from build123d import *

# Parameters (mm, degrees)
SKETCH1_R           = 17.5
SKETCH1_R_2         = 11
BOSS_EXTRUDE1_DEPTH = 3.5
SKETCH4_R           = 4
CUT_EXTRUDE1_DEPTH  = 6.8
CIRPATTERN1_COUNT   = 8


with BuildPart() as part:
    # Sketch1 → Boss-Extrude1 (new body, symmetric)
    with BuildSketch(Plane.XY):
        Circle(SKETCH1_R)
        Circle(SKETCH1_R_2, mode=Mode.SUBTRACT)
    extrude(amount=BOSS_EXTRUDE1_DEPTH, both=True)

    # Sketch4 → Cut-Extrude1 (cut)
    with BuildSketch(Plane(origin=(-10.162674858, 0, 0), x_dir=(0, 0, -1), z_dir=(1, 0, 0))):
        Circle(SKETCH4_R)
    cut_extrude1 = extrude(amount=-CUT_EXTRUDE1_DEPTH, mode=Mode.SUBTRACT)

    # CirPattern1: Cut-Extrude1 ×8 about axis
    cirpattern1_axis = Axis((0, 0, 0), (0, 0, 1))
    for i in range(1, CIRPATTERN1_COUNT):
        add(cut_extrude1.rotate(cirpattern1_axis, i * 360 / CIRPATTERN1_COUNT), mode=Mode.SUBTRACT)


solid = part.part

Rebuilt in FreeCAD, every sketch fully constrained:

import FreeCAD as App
import Part
import Sketcher

doc = App.newDocument("Part")
body = doc.addObject("PartDesign::Body", "Body")

sketch1 = doc.addObject("Sketcher::SketchObject", "Sketch")
body.addObject(sketch1)
sketch1.AttachmentSupport = (doc.XY_Plane, [""])
sketch1.MapMode = "FlatFace"
sketch1.addGeometry([
    Part.Circle(App.Vector(0, 0, 0), App.Vector(0, 0, 1), 18),
    Part.Circle(App.Vector(0, 0, 0), App.Vector(0, 0, 1), 11),
], False)
sketch1.addConstraint([
    Sketcher.Constraint("Coincident", 0, 3, -1, 1),
    Sketcher.Constraint("Coincident", 1, 3, -1, 1),
    Sketcher.Constraint("Diameter", 0, 35.0),
    Sketcher.Constraint("Diameter", 1, 22.0),
])
pad1 = doc.addObject("PartDesign::Pad", "Pad")
body.addObject(pad1)
pad1.Profile = sketch1
pad1.Length = 7
pad1.Midplane = True

sketch2 = doc.addObject("Sketcher::SketchObject", "Sketch001")
body.addObject(sketch2)
sketch2.AttachmentSupport = (doc.YZ_Plane, [""])
sketch2.MapMode = "FlatFace"
sketch2.AttachmentOffset = App.Placement(App.Vector(0, 0, -10.162675), App.Rotation())
sketch2.addGeometry(Part.Circle(App.Vector(0, 0, 0), App.Vector(0, 0, 1), 4), False)
sketch2.addConstraint([
    Sketcher.Constraint("Coincident", 0, 3, -1, 1),
    Sketcher.Constraint("Diameter", 0, 8.0),
])
pocket1 = doc.addObject("PartDesign::Pocket", "Pocket")
body.addObject(pocket1)
pocket1.Profile = sketch2
pocket1.Length = 6.8
doc.recompute()

polarpattern = doc.addObject("PartDesign::PolarPattern", "PolarPattern")
body.addObject(polarpattern)
polarpattern.Originals = [pocket1]
polarpattern.Axis = (doc.Z_Axis, [""])
polarpattern.Angle = 360
polarpattern.Occurrences = 8
body.Tip = polarpattern

doc.recompute()
